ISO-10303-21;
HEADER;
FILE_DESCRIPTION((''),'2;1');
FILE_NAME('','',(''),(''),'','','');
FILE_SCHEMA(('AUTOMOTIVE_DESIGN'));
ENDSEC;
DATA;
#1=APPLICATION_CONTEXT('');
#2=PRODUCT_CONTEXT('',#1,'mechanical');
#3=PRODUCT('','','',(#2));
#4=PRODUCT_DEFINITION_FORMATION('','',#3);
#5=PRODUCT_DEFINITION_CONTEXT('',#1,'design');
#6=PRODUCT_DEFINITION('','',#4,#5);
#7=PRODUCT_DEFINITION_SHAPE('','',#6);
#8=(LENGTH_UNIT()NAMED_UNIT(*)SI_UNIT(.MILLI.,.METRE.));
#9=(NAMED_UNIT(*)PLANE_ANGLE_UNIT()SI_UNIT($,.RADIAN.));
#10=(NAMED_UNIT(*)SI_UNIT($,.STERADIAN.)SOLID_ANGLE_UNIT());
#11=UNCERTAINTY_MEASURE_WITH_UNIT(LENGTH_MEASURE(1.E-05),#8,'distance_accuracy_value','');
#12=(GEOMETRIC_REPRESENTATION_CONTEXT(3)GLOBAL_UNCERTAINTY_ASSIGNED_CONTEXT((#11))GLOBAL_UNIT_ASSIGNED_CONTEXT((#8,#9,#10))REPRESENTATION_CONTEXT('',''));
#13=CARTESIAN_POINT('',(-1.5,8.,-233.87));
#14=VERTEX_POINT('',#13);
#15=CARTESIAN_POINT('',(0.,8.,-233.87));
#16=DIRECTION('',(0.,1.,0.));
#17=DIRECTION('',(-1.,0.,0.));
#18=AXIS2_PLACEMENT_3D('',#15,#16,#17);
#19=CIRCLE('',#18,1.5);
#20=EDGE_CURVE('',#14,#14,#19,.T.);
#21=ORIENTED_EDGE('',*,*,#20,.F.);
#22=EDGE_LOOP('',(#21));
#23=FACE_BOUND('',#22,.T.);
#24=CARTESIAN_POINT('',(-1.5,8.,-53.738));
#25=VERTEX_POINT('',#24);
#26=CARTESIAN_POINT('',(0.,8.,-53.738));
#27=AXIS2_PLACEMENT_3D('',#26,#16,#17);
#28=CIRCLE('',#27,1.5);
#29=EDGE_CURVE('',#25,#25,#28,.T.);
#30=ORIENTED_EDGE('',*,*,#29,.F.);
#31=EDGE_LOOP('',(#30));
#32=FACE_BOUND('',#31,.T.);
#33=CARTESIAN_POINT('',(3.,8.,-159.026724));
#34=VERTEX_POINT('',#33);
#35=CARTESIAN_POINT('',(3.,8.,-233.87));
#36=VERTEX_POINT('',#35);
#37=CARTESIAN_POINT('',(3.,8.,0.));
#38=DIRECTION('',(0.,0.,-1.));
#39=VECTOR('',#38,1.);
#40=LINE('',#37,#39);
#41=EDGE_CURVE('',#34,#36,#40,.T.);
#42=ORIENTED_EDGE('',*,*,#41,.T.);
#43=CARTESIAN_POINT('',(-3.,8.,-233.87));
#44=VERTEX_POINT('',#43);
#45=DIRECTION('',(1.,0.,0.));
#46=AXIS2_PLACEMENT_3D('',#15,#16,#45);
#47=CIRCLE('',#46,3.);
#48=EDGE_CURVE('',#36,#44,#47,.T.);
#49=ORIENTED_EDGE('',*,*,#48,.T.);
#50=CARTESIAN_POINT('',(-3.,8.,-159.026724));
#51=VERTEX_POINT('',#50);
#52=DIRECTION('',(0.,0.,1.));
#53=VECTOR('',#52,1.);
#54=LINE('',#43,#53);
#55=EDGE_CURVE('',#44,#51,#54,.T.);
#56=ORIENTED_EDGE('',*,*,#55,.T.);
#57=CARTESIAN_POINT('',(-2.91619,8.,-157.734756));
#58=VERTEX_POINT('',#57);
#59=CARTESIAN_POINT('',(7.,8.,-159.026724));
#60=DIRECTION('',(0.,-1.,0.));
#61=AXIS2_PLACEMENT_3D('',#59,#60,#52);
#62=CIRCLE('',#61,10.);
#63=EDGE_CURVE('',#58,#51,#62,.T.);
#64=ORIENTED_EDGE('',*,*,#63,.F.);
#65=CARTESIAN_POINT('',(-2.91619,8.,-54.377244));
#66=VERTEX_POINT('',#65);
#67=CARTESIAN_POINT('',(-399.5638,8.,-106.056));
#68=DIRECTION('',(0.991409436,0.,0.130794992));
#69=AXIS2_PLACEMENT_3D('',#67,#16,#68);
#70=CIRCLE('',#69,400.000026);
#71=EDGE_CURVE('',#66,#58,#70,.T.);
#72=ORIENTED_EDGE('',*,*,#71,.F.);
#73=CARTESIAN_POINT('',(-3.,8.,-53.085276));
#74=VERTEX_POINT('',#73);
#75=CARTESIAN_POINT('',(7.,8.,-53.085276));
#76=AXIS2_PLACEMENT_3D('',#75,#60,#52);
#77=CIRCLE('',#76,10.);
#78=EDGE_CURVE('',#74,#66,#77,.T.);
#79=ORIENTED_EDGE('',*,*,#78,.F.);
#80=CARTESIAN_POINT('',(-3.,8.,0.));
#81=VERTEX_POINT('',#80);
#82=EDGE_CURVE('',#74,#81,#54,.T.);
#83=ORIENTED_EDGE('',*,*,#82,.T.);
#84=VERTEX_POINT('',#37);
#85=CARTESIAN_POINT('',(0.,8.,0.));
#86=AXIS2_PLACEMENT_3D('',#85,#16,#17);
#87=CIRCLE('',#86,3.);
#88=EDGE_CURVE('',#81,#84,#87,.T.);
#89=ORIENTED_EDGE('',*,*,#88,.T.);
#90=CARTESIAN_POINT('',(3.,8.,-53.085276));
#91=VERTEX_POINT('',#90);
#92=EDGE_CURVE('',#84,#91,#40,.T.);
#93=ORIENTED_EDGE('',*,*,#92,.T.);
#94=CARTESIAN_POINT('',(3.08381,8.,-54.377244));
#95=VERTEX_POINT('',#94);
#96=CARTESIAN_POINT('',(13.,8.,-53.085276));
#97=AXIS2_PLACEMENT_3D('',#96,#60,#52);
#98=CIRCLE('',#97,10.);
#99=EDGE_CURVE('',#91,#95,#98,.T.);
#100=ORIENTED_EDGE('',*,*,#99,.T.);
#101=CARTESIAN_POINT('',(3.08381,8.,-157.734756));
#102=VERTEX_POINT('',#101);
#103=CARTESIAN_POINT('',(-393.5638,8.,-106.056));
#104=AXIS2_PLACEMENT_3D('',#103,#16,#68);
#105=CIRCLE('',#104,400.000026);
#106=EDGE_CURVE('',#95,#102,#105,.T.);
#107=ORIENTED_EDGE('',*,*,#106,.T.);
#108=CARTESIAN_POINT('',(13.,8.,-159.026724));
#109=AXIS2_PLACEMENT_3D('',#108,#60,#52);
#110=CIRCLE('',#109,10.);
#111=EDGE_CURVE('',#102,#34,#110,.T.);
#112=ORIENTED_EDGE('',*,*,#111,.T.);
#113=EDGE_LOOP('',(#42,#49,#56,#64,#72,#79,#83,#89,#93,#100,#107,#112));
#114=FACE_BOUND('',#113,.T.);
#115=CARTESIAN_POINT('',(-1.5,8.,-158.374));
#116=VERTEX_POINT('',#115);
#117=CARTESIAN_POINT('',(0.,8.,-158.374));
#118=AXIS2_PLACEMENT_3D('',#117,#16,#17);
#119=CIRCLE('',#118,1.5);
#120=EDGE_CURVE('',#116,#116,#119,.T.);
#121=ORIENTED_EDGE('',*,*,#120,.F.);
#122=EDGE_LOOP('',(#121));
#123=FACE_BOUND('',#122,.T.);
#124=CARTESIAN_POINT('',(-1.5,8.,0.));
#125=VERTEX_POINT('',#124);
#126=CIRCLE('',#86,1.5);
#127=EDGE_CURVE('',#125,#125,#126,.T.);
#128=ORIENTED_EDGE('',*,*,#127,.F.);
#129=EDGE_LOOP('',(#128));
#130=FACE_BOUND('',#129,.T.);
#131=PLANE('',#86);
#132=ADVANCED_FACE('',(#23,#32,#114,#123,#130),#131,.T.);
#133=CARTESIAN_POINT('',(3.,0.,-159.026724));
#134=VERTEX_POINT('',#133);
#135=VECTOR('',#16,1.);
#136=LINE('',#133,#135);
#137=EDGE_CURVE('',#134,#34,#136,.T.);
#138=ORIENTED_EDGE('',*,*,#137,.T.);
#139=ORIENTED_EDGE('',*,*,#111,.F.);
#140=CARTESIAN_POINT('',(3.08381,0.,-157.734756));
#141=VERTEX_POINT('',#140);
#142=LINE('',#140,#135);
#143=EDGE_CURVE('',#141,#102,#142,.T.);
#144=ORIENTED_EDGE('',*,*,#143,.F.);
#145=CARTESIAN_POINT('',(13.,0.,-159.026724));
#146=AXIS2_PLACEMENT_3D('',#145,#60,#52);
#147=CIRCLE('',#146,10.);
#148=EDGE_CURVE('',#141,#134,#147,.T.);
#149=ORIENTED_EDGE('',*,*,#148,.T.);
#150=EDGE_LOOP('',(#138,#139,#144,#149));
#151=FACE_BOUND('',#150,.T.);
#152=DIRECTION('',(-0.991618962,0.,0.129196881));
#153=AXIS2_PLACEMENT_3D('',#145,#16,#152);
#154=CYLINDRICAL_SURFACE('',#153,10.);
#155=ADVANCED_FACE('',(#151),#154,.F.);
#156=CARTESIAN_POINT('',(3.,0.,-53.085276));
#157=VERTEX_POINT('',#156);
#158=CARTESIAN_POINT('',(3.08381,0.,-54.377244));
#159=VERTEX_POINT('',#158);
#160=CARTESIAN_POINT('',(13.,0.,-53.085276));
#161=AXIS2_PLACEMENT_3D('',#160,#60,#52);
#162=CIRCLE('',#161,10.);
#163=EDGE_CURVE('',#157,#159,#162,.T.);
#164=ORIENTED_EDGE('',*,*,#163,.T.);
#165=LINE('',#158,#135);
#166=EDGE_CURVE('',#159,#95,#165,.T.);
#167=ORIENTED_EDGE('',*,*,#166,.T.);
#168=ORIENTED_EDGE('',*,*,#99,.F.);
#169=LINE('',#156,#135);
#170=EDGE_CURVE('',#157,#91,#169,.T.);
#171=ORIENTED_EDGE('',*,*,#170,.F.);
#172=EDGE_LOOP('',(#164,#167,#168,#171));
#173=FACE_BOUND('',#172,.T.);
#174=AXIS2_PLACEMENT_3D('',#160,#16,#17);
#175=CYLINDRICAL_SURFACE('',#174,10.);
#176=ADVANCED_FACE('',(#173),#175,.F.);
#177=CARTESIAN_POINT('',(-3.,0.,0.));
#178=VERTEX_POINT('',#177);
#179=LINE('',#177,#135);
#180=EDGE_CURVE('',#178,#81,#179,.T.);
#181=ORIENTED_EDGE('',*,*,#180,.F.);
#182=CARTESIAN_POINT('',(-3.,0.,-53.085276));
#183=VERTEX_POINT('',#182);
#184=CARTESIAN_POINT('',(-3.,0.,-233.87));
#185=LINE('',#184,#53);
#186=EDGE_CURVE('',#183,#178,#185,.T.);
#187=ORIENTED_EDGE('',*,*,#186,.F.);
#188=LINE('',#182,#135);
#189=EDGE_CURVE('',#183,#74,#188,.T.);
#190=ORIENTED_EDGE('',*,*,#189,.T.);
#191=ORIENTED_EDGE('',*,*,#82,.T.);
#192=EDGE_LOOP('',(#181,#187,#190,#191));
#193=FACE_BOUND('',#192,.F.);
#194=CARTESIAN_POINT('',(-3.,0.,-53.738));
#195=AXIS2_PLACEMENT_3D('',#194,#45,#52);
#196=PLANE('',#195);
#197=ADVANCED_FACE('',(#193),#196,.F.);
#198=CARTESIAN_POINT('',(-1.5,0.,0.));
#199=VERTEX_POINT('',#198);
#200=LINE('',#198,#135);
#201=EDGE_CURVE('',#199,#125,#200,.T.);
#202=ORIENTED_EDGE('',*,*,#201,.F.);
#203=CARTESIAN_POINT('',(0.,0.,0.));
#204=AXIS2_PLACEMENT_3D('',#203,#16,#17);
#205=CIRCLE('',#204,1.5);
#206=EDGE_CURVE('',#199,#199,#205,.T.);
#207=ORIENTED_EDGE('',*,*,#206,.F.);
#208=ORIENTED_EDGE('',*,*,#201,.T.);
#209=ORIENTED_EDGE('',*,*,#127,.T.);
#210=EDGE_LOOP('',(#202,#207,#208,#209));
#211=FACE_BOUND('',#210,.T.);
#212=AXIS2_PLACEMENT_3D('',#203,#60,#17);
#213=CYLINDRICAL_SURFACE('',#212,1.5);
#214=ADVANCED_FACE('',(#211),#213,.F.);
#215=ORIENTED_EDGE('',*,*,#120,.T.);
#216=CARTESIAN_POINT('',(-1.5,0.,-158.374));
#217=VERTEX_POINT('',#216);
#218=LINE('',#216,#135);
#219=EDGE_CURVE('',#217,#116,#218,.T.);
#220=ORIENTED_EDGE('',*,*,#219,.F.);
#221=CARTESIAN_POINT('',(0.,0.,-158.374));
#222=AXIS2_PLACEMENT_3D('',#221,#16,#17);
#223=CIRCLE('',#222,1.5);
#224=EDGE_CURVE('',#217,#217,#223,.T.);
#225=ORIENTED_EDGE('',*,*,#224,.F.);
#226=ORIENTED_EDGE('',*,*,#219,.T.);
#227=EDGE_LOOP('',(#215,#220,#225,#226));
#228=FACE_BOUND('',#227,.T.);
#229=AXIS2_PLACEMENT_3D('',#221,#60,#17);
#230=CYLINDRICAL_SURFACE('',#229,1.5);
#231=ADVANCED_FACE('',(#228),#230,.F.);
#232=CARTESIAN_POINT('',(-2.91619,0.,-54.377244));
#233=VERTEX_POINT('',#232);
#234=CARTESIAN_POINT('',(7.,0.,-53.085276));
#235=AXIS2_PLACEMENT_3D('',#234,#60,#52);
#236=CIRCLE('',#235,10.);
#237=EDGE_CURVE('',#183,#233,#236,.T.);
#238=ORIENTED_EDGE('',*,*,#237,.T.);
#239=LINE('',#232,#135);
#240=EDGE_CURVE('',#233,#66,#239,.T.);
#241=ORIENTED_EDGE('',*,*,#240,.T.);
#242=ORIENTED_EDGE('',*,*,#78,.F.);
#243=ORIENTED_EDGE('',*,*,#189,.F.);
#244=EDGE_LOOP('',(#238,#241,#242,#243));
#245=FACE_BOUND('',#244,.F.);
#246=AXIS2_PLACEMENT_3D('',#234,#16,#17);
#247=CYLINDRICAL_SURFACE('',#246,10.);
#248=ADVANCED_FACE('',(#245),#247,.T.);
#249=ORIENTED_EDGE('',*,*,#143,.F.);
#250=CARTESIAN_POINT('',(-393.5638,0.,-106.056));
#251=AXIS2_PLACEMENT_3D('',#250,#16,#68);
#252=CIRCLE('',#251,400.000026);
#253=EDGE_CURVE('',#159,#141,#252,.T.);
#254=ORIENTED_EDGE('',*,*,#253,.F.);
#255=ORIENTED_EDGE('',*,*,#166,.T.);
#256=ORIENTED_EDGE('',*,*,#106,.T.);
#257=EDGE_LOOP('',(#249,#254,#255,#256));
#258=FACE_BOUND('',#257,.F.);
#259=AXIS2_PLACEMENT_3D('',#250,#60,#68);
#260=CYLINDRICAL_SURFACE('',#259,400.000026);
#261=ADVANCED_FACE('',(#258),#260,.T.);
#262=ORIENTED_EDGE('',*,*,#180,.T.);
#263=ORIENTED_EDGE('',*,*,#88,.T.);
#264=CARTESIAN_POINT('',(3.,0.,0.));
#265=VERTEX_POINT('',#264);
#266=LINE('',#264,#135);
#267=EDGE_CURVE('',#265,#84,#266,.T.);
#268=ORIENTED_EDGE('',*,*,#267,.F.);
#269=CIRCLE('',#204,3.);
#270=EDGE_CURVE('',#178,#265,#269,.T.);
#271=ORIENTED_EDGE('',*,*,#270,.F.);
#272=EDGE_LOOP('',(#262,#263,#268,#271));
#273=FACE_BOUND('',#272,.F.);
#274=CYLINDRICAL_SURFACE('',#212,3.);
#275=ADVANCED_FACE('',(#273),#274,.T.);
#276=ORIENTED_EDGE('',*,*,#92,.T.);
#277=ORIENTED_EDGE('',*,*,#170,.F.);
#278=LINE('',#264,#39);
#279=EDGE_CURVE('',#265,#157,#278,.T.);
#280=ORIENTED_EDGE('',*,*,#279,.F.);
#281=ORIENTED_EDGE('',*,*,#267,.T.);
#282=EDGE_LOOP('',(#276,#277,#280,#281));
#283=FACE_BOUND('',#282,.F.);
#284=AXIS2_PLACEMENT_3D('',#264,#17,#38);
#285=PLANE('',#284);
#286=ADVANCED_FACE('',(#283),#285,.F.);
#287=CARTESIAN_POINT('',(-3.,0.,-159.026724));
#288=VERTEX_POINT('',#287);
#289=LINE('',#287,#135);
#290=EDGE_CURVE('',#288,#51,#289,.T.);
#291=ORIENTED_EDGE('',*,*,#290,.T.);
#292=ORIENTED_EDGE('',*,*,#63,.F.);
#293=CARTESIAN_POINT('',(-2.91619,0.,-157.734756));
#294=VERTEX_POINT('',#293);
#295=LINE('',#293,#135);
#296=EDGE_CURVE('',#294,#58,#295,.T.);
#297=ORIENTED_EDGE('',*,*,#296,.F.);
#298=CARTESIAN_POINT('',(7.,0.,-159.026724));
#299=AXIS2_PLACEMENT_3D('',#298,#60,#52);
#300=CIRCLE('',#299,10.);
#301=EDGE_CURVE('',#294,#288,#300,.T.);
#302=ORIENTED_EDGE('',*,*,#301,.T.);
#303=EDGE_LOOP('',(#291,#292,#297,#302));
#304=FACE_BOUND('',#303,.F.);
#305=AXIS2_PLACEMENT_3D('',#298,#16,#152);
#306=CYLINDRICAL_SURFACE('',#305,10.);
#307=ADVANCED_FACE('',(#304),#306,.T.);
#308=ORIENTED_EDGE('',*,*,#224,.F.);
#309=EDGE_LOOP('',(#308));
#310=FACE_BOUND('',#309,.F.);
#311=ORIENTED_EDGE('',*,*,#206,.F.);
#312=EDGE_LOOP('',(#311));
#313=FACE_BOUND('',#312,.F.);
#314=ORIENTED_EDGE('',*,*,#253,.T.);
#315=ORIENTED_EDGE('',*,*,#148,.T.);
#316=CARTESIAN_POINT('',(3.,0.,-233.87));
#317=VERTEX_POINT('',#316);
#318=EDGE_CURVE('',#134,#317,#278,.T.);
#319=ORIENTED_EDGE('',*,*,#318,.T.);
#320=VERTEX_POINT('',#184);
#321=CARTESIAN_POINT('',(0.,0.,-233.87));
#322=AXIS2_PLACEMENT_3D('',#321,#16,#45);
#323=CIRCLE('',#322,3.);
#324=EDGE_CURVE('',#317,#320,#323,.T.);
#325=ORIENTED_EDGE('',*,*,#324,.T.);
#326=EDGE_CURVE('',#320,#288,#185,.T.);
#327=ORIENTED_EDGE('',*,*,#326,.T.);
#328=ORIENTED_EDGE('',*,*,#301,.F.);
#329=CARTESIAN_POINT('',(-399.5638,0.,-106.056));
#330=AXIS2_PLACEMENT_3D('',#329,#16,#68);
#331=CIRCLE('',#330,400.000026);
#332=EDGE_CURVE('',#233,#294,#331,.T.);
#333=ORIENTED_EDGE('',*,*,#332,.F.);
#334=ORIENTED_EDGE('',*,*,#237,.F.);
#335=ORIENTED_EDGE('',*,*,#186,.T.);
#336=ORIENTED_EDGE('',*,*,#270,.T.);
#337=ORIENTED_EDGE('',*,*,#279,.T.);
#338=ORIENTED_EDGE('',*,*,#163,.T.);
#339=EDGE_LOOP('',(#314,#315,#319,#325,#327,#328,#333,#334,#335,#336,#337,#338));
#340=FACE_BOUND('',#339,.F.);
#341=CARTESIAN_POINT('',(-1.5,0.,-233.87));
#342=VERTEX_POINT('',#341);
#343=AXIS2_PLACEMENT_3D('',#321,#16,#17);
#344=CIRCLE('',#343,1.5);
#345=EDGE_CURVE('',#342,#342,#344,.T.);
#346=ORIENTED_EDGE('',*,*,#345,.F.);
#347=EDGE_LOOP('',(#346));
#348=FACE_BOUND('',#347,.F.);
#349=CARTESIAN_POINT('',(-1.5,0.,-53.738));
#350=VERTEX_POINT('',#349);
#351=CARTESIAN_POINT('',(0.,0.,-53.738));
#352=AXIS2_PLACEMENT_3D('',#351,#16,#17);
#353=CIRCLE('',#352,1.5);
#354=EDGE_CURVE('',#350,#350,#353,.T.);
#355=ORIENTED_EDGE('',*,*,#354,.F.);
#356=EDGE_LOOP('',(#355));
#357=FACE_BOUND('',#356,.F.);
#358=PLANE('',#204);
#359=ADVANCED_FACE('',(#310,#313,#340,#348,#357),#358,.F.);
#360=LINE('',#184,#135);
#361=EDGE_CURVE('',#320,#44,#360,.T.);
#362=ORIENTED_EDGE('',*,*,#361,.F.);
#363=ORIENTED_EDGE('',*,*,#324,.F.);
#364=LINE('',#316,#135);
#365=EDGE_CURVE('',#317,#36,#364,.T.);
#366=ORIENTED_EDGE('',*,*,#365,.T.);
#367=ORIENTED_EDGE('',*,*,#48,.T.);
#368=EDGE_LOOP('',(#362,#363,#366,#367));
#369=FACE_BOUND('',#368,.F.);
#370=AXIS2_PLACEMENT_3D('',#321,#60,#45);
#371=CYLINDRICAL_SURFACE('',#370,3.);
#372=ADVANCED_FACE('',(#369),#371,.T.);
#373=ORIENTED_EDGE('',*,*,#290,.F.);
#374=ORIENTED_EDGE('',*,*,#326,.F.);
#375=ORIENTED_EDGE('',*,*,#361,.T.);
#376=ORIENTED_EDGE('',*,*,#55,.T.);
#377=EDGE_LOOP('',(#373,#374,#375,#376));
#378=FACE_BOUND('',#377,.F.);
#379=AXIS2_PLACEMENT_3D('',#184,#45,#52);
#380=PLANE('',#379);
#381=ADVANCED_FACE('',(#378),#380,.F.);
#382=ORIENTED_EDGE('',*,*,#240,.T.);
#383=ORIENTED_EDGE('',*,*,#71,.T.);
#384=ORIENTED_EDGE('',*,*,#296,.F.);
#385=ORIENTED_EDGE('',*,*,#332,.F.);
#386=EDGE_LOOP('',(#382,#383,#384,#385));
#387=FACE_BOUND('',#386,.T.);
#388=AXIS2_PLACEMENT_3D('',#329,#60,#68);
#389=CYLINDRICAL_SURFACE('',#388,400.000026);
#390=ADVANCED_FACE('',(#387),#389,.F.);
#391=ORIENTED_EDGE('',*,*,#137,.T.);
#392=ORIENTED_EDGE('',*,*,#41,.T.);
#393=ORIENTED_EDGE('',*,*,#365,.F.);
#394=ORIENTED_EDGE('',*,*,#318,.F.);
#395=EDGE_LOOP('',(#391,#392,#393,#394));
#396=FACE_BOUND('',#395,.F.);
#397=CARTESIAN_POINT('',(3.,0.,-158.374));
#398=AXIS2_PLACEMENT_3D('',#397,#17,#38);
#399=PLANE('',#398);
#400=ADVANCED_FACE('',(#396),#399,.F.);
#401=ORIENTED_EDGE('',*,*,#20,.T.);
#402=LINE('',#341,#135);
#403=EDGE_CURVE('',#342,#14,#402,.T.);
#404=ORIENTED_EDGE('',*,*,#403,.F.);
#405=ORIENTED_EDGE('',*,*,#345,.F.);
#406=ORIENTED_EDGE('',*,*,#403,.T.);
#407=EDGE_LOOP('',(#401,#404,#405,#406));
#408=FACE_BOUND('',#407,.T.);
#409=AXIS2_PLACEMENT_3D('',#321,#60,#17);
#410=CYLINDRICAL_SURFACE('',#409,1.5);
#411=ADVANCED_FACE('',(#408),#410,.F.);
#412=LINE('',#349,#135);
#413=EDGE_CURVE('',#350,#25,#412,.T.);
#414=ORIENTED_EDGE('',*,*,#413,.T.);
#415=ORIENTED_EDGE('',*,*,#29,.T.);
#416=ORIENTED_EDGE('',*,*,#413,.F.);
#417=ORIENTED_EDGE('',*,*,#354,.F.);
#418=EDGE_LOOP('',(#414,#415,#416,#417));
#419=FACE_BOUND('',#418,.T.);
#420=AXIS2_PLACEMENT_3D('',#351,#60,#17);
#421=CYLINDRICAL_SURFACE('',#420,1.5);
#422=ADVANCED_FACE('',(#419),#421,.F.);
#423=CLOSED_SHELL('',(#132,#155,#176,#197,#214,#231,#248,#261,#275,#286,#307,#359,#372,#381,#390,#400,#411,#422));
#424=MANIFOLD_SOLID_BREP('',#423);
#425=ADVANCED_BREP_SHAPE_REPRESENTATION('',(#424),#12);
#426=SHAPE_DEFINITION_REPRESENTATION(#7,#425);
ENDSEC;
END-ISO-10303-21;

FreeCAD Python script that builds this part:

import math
import FreeCAD as App
import Part
import Sketcher

V = App.Vector


def edges_at(feature, points):
    """Names of the edges that pass closest to the given points."""
    edges = feature.Shape.Edges
    near = lambda p: min(range(len(edges)), key=lambda i: edges[i].distToShape(Part.Vertex(*p))[0])
    return sorted({f"Edge{near(p) + 1}" for p in points})

doc = App.newDocument("Part")
params = doc.addObject("Spreadsheet::Sheet", "Params")
for row, (alias, value) in enumerate([
    ("sketch1_diameter", "3 mm"),
    ("sketch1_radius", "3 mm"),
    ("sketch1_radius2", "400 mm"),
    ("pad1_length", "8 mm"),
    ("fillet_radius", "10 mm"),
], start=1):
    params.set(f"A{row}", alias)
    params.set(f"B{row}", "=" + value)
    params.setAlias(f"B{row}", alias)

body = doc.addObject("PartDesign::Body", "Body")

sketch1 = body.newObject("Sketcher::SketchObject", "Sketch")
sketch1.AttachmentSupport = (doc.getObject("XZ_Plane"), [""])
sketch1.MapMode = "FlatFace"
sketch1.addGeometry([
    Part.ArcOfCircle(Part.Circle(V(0, 0, 0), V(0, 0, 1), 3), math.radians(0), math.radians(180)),
    Part.LineSegment(V(3, 0, 0), V(3, -53.738, 0)),
    Part.ArcOfCircle(Part.Circle(V(-393.5638, -106.056, 0), V(0, 0, 1), 400.000026), math.radians(-7.515534), math.radians(7.515534)),
    Part.LineSegment(V(3, -158.374, 0), V(3, -233.87, 0)),
    Part.ArcOfCircle(Part.Circle(V(0, -233.87, 0), V(0, 0, 1), 3), math.radians(180), math.radians(360)),
    Part.LineSegment(V(-3, -233.87, 0), V(-3, -158.374, 0)),
    Part.ArcOfCircle(Part.Circle(V(-399.5638, -106.056, 0), V(0, 0, 1), 400.000026), math.radians(-7.515534), math.radians(7.515534)),
    Part.LineSegment(V(-3, -53.738, 0), V(-3, 0, 0)),
    Part.Circle(V(0, -233.87, 0), V(0, 0, 1), 1.5),
    Part.Circle(V(0, -158.374, 0), V(0, 0, 1), 1.5),
    Part.Circle(V(0, -53.738, 0), V(0, 0, 1), 1.5),
    Part.Circle(V(0, 0, 0), V(0, 0, 1), 1.5),
], False)
sketch1.addConstraint([
    Sketcher.Constraint("Tangent", 0, 1, 1, 1),
    Sketcher.Constraint("Coincident", 1, 2, 2, 2),
    Sketcher.Constraint("Coincident", 2, 1, 3, 1),
    Sketcher.Constraint("Tangent", 3, 2, 4, 2),
    Sketcher.Constraint("Tangent", 4, 1, 5, 1),
    Sketcher.Constraint("Coincident", 5, 2, 6, 1),
    Sketcher.Constraint("Coincident", 6, 2, 7, 1),
    Sketcher.Constraint("Tangent", 7, 2, 0, 2),
    Sketcher.Constraint("Vertical", 1),
    Sketcher.Constraint("Vertical", 3),
    Sketcher.Constraint("Vertical", 5),
    Sketcher.Constraint("Vertical", 7),
    Sketcher.Constraint("Coincident", 0, 3, -1, 1),
    Sketcher.Constraint("Coincident", 11, 3, -1, 1),
    Sketcher.Constraint("Coincident", 8, 3, 4, 3),
    Sketcher.Constraint("Equal", 0, 4),
    Sketcher.Constraint("Equal", 2, 6),
    Sketcher.Constraint("Equal", 8, 9),
    Sketcher.Constraint("Equal", 9, 10),
    Sketcher.Constraint("Equal", 10, 11),
    Sketcher.Constraint("Symmetric", 2, 1, 5, 2, -2),
    Sketcher.Constraint("PointOnObject", 9, 3, -2),
    Sketcher.Constraint("PointOnObject", 10, 3, -2),
    Sketcher.Constraint("Horizontal", 2, 3, 6, 3),
    Sketcher.Constraint("Horizontal", 10, 3, 1, 2),
    Sketcher.Constraint("Horizontal", 9, 3, 2, 1),
    Sketcher.Constraint("Diameter", 8, 3.0),
    Sketcher.Constraint("Radius", 0, 3.0),
    Sketcher.Constraint("Radius", 2, 400.0),
    Sketcher.Constraint("DistanceY", 1, 2, 1, 1, 53.738),
    Sketcher.Constraint("DistanceY", 4, 3, -1, 1, 233.87),
    Sketcher.Constraint("DistanceY", 9, 3, -1, 1, 158.374),
])
sketch1.setExpression("Constraints[26]", "Params.sketch1_diameter")
sketch1.setExpression("Constraints[27]", "Params.sketch1_radius")
sketch1.setExpression("Constraints[28]", "Params.sketch1_radius2")
pad1 = body.newObject("PartDesign::Pad", "Pad")
pad1.Profile = sketch1
pad1.setExpression("Length", "Params.pad1_length")
pad1.Reversed = True
doc.recompute()

fillet = body.newObject("PartDesign::Fillet", "Fillet")
fillet.Base = (pad1, edges_at(pad1, [
    (3, 4, -53.738),
    (3, 4, -158.374),
    (-3, 4, -158.374),
    (-3, 4, -53.738),
]))
fillet.setExpression("Radius", "Params.fillet_radius")

doc.recompute()
